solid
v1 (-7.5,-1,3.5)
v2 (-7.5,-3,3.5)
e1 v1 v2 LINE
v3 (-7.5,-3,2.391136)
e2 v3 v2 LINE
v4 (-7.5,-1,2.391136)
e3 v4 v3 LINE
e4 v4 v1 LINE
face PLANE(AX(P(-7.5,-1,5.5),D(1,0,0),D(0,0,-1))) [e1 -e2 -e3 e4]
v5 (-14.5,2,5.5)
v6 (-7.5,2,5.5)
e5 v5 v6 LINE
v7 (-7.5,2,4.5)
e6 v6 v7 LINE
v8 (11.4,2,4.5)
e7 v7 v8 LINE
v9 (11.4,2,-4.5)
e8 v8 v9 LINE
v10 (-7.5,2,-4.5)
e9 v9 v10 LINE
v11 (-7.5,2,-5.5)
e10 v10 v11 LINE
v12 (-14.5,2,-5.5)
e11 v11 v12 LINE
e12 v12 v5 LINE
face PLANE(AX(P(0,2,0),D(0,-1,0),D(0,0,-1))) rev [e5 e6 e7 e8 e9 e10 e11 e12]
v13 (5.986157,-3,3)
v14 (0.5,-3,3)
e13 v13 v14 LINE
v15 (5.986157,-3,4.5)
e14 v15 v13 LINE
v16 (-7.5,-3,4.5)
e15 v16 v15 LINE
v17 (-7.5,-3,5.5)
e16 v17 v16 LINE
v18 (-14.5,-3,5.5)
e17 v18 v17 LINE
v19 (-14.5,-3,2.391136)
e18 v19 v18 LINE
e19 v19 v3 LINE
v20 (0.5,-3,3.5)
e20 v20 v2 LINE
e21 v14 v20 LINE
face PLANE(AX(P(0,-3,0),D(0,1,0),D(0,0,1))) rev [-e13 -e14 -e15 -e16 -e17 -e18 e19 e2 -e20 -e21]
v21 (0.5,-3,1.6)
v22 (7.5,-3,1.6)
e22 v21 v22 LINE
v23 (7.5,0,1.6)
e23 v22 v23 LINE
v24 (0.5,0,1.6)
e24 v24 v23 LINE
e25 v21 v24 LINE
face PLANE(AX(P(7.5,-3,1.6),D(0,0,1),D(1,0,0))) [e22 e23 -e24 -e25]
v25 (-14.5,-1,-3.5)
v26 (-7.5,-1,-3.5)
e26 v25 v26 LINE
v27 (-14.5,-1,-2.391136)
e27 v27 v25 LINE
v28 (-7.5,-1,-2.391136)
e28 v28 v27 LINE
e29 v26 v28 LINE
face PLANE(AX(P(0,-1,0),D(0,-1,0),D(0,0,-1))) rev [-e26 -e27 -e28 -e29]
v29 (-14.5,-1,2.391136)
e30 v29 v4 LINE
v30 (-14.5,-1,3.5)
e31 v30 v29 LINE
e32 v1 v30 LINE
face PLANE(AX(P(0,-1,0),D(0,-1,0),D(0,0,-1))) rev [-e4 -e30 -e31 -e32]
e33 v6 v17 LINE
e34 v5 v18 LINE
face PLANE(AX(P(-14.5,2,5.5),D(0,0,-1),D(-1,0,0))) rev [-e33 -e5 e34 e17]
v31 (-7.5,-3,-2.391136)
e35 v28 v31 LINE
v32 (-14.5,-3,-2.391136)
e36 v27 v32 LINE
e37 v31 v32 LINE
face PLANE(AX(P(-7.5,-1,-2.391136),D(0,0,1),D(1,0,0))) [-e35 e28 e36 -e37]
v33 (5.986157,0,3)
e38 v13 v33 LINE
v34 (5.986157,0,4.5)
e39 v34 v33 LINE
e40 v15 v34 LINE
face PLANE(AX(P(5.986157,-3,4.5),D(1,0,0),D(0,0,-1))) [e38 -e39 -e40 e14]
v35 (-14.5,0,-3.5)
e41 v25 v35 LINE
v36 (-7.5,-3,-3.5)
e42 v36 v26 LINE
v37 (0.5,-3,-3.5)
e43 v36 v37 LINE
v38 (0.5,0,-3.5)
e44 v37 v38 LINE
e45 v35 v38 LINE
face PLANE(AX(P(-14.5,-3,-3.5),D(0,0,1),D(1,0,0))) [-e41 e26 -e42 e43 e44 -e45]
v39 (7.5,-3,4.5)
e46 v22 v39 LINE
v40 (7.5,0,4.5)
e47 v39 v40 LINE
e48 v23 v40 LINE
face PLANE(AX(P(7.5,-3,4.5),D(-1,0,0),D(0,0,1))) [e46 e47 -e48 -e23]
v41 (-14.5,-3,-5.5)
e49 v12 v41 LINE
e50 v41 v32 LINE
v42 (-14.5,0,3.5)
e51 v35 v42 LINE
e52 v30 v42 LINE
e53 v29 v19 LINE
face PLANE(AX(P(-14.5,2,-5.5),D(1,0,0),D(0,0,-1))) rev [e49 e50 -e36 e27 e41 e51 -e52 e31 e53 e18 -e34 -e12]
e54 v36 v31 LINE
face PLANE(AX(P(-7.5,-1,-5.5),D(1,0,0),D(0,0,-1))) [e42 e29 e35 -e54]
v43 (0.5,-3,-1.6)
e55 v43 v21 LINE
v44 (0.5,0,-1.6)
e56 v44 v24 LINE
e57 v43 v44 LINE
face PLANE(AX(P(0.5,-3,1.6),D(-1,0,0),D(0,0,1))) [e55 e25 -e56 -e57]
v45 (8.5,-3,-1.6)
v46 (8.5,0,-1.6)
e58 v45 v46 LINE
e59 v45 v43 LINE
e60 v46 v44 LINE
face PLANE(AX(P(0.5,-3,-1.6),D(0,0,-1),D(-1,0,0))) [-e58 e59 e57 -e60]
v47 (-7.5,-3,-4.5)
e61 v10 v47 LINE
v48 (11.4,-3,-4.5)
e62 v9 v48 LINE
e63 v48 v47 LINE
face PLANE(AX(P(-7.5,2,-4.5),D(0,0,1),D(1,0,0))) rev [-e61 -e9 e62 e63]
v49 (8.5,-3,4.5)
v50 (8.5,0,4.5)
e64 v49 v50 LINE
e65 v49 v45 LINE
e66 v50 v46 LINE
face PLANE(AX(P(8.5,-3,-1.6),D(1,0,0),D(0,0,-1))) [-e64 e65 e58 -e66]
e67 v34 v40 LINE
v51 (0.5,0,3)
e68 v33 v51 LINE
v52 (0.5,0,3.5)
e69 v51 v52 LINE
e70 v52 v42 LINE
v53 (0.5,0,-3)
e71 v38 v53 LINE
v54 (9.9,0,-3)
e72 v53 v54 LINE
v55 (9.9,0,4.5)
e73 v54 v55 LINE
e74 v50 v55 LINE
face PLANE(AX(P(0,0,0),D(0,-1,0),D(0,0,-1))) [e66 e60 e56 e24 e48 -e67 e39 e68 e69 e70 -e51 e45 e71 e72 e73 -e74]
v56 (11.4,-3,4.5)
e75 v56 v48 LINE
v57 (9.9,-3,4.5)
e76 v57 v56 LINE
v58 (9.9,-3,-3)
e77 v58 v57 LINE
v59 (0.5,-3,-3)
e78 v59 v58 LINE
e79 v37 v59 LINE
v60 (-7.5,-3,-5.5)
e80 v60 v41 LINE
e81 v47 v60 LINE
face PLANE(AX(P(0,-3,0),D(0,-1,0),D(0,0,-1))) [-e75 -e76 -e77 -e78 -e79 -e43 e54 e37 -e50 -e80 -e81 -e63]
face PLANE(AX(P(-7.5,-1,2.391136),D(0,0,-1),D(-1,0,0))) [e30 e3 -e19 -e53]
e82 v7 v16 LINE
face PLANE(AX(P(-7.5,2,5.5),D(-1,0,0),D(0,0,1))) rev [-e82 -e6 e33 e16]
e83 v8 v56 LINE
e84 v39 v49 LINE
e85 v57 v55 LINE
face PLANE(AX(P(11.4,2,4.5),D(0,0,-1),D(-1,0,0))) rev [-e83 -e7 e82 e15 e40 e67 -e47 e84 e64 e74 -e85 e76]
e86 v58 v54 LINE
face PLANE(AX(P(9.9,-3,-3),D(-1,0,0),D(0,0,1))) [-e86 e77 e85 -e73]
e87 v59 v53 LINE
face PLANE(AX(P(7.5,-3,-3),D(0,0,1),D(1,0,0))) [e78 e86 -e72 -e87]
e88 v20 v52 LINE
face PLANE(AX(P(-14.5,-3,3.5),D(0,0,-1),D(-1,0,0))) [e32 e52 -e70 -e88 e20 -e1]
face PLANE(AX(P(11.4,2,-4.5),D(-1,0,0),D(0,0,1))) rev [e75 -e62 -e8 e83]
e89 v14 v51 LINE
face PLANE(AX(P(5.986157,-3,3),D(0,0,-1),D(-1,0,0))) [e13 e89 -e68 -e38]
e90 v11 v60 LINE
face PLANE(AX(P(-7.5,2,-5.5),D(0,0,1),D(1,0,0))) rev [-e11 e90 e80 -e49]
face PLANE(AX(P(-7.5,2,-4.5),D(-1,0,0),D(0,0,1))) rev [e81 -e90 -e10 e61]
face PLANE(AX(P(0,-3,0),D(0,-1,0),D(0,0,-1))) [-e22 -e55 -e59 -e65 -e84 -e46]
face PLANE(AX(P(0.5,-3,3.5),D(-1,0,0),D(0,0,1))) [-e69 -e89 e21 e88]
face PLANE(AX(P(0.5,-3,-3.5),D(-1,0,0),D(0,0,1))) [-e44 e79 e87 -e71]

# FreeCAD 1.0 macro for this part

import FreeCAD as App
import Part
import Sketcher
from FreeCAD import Vector
Q = App.Units.Quantity

doc = App.newDocument("Part")
body = doc.addObject("PartDesign::Body", "Body")

sketch1 = doc.addObject("Sketcher::SketchObject", "Sketch")
body.addObject(sketch1)
sketch1.AttachmentSupport = (doc.XZ_Plane, [""])
sketch1.MapMode = "FlatFace"
sketch1.addGeometry([
    Part.LineSegment(Vector(-7.5, 4.5, 0), Vector(11.4, 4.5, 0)),
    Part.LineSegment(Vector(11.4, 4.5, 0), Vector(11.4, -4.5, 0)),
    Part.LineSegment(Vector(11.4, -4.5, 0), Vector(-7.5, -4.5, 0)),
    Part.LineSegment(Vector(-7.5, -4.5, 0), Vector(-7.5, -5.5, 0)),
    Part.LineSegment(Vector(-7.5, -5.5, 0), Vector(-14.5, -5.5, 0)),
    Part.LineSegment(Vector(-14.5, -5.5, 0), Vector(-14.5, 5.5, 0)),
    Part.LineSegment(Vector(-14.5, 5.5, 0), Vector(-7.5, 5.5, 0)),
    Part.LineSegment(Vector(-7.5, 5.5, 0), Vector(-7.5, 4.5, 0)),
], False)
sketch1.addConstraint([
    Sketcher.Constraint("Coincident", 0, 2, 1, 1),
    Sketcher.Constraint("Coincident", 1, 2, 2, 1),
    Sketcher.Constraint("Coincident", 2, 2, 3, 1),
    Sketcher.Constraint("Coincident", 3, 2, 4, 1),
    Sketcher.Constraint("Coincident", 4, 2, 5, 1),
    Sketcher.Constraint("Coincident", 5, 2, 6, 1),
    Sketcher.Constraint("Coincident", 6, 2, 7, 1),
    Sketcher.Constraint("Coincident", 7, 2, 0, 1),
    Sketcher.Constraint("Horizontal", 0),
    Sketcher.Constraint("Vertical", 1),
    Sketcher.Constraint("Horizontal", 2),
    Sketcher.Constraint("Vertical", 3),
    Sketcher.Constraint("Horizontal", 4),
    Sketcher.Constraint("Vertical", 5),
    Sketcher.Constraint("Horizontal", 6),
    Sketcher.Constraint("Vertical", 7),
    Sketcher.Constraint("Symmetric", 3, 2, 6, 2, -1),
    Sketcher.Constraint("Equal", 3, 7),
    Sketcher.Constraint("DistanceX", 4, 2, 4, 1, Q("7 mm")),
    Sketcher.Constraint("DistanceY", 1, 2, 1, 1, Q("9 mm")),
    Sketcher.Constraint("DistanceY", 3, 2, 3, 1, Q("1 mm")),
    Sketcher.Constraint("DistanceX", 0, 1, 0, 2, Q("18.9 mm")),
    Sketcher.Constraint("DistanceX", -1, 1, 0, 2, Q("11.4 mm")),
])
pad1 = doc.addObject("PartDesign::Pad", "Pad")
body.addObject(pad1)
pad1.Profile = sketch1
pad1.Length = 2
pad1.Reversed = True

sketch2 = doc.addObject("Sketcher::SketchObject", "Sketch001")
body.addObject(sketch2)
sketch2.AttachmentSupport = (doc.XZ_Plane, [""])
sketch2.MapMode = "FlatFace"
sketch2.addGeometry([
    Part.LineSegment(Vector(-7.5, -4.5, 0), Vector(-7.5, -5.5, 0)),
    Part.LineSegment(Vector(-7.5, -5.5, 0), Vector(-14.5, -5.5, 0)),
    Part.LineSegment(Vector(-14.5, -5.5, 0), Vector(-14.5, -3.5, 0)),
    Part.LineSegment(Vector(-14.5, -3.5, 0), Vector(0.5, -3.5, 0)),
    Part.LineSegment(Vector(0.5, -3.5, 0), Vector(0.5, -3, 0)),
    Part.LineSegment(Vector(0.5, -3, 0), Vector(9.9, -3, 0)),
    Part.LineSegment(Vector(9.9, -3, 0), Vector(9.9, 4.5, 0)),
    Part.LineSegment(Vector(9.9, 4.5, 0), Vector(11.4, 4.5, 0)),
    Part.LineSegment(Vector(11.4, 4.5, 0), Vector(11.4, -4.5, 0)),
    Part.LineSegment(Vector(11.4, -4.5, 0), Vector(-7.5, -4.5, 0)),
    Part.LineSegment(Vector(-7.5, 5.5, 0), Vector(-7.5, 4.5, 0)),
    Part.LineSegment(Vector(-7.5, 4.5, 0), Vector(5.986157, 4.5, 0)),
    Part.LineSegment(Vector(5.986157, 4.5, 0), Vector(5.986157, 3, 0)),
    Part.LineSegment(Vector(5.986157, 3, 0), Vector(0.5, 3, 0)),
    Part.LineSegment(Vector(0.5, 3, 0), Vector(0.5, 3.5, 0)),
    Part.LineSegment(Vector(0.5, 3.5, 0), Vector(-14.5, 3.5, 0)),
    Part.LineSegment(Vector(-14.5, 3.5, 0), Vector(-14.5, 5.5, 0)),
    Part.LineSegment(Vector(-14.5, 5.5, 0), Vector(-7.5, 5.5, 0)),
    Part.LineSegment(Vector(8.5, -1.6, 0), Vector(0.5, -1.6, 0)),
    Part.LineSegment(Vector(0.5, -1.6, 0), Vector(0.5, 1.6, 0)),
    Part.LineSegment(Vector(0.5, 1.6, 0), Vector(7.5, 1.6, 0)),
    Part.LineSegment(Vector(7.5, 1.6, 0), Vector(7.5, 4.5, 0)),
    Part.LineSegment(Vector(7.5, 4.5, 0), Vector(8.5, 4.5, 0)),
    Part.LineSegment(Vector(8.5, 4.5, 0), Vector(8.5, -1.6, 0)),
], False)
sketch2.addConstraint([
    Sketcher.Constraint("Coincident", 0, 2, 1, 1),
    Sketcher.Constraint("Coincident", 1, 2, 2, 1),
    Sketcher.Constraint("Coincident", 2, 2, 3, 1),
    Sketcher.Constraint("Coincident", 3, 2, 4, 1),
    Sketcher.Constraint("Coincident", 4, 2, 5, 1),
    Sketcher.Constraint("Coincident", 5, 2, 6, 1),
    Sketcher.Constraint("Coincident", 6, 2, 7, 1),
    Sketcher.Constraint("Coincident", 7, 2, 8, 1),
    Sketcher.Constraint("Coincident", 8, 2, 9, 1),
    Sketcher.Constraint("Coincident", 9, 2, 0, 1),
    Sketcher.Constraint("Coincident", 10, 2, 11, 1),
    Sketcher.Constraint("Coincident", 11, 2, 12, 1),
    Sketcher.Constraint("Coincident", 12, 2, 13, 1),
    Sketcher.Constraint("Coincident", 13, 2, 14, 1),
    Sketcher.Constraint("Coincident", 14, 2, 15, 1),
    Sketcher.Constraint("Coincident", 15, 2, 16, 1),
    Sketcher.Constraint("Coincident", 16, 2, 17, 1),
    Sketcher.Constraint("Coincident", 17, 2, 10, 1),
    Sketcher.Constraint("Coincident", 18, 2, 19, 1),
    Sketcher.Constraint("Coincident", 19, 2, 20, 1),
    Sketcher.Constraint("Coincident", 20, 2, 21, 1),
    Sketcher.Constraint("Coincident", 21, 2, 22, 1),
    Sketcher.Constraint("Coincident", 22, 2, 23, 1),
    Sketcher.Constraint("Coincident", 23, 2, 18, 1),
    Sketcher.Constraint("Vertical", 0),
    Sketcher.Constraint("Horizontal", 1),
    Sketcher.Constraint("Vertical", 2),
    Sketcher.Constraint("Horizontal", 3),
    Sketcher.Constraint("Vertical", 4),
    Sketcher.Constraint("Horizontal", 5),
    Sketcher.Constraint("Vertical", 6),
    Sketcher.Constraint("Horizontal", 7),
    Sketcher.Constraint("Vertical", 8),
    Sketcher.Constraint("Horizontal", 9),
    Sketcher.Constraint("Vertical", 10),
    Sketcher.Constraint("Horizontal", 11),
    Sketcher.Constraint("Vertical", 12),
    Sketcher.Constraint("Horizontal", 13),
    Sketcher.Constraint("Vertical", 14),
    Sketcher.Constraint("Horizontal", 15),
    Sketcher.Constraint("Vertical", 16),
    Sketcher.Constraint("Horizontal", 17),
    Sketcher.Constraint("Horizontal", 18),
    Sketcher.Constraint("Vertical", 19),
    Sketcher.Constraint("Horizontal", 20),
    Sketcher.Constraint("Vertical", 21),
    Sketcher.Constraint("Horizontal", 22),
    Sketcher.Constraint("Vertical", 23),
    Sketcher.Constraint("Symmetric", 9, 2, 21, 2, -1, 1),
    Sketcher.Constraint("Symmetric", 10, 2, 21, 2, -2),
    Sketcher.Constraint("Symmetric", 4, 2, 13, 2, -1),
    Sketcher.Constraint("Symmetric", 2, 2, 15, 2, -1),
    Sketcher.Constraint("Horizontal", 7, 2, 10, 2),
    Sketcher.Constraint("Vertical", 14, 2, 18, 2),
    Sketcher.Constraint("Equal", 17, 20),
    Sketcher.Constraint("Equal", 22, 0),
    Sketcher.Constraint("Equal", 0, 10),
    Sketcher.Constraint("Equal", 7, 12),
    Sketcher.Constraint("DistanceX", 1, 2, 1, 1, Q("7 mm")),
    Sketcher.Constraint("DistanceX", 3, 1, 3, 2, Q("15 mm")),
    Sketcher.Constraint("DistanceX", 18, 2, 18, 1, Q("8 mm")),
    Sketcher.Constraint("DistanceY", 2, 1, 2, 2, Q("2 mm")),
    Sketcher.Constraint("DistanceY", 8, 2, 8, 1, Q("9 mm")),
    Sketcher.Constraint("DistanceX", 5, 1, 5, 2, Q("9.4 mm")),
    Sketcher.Constraint("DistanceX", 7, 1, 7, 2, Q("1.5 mm")),
    Sketcher.Constraint("DistanceY", 19, 1, 19, 2, Q("3.2 mm")),
    Sketcher.Constraint("DistanceY", 21, 1, 21, 2, Q("2.9 mm")),
    Sketcher.Constraint("DistanceX", 11, 1, 11, 2, Q("13.486157 mm")),
])
pad2 = doc.addObject("PartDesign::Pad", "Pad001")
body.addObject(pad2)
pad2.Profile = sketch2
pad2.Length = 3

sketch3 = doc.addObject("Sketcher::SketchObject", "Sketch002")
body.addObject(sketch3)
sketch3.AttachmentSupport = (doc.XZ_Plane, [""])
sketch3.MapMode = "FlatFace"
sketch3.AttachmentOffset = App.Placement(Vector(0, 0, 3), App.Rotation())
sketch3.addGeometry([
    Part.LineSegment(Vector(-14.5, 5.5, 0), Vector(-14.5, 2.391136, 0)),
    Part.LineSegment(Vector(-14.5, 2.391136, 0), Vector(-7.5, 2.391136, 0)),
    Part.LineSegment(Vector(-7.5, 2.391136, 0), Vector(-7.5, 5.5, 0)),
    Part.LineSegment(Vector(-7.5, 5.5, 0), Vector(-14.5, 5.5, 0)),
    Part.LineSegment(Vector(-14.5, -2.391136, 0), Vector(-14.5, -5.5, 0)),
    Part.LineSegment(Vector(-14.5, -5.5, 0), Vector(-7.5, -5.5, 0)),
    Part.LineSegment(Vector(-7.5, -5.5, 0), Vector(-7.5, -2.391136, 0)),
    Part.LineSegment(Vector(-7.5, -2.391136, 0), Vector(-14.5, -2.391136, 0)),
], False)
sketch3.addConstraint([
    Sketcher.Constraint("Coincident", 0, 2, 1, 1),
    Sketcher.Constraint("Coincident", 1, 2, 2, 1),
    Sketcher.Constraint("Coincident", 2, 2, 3, 1),
    Sketcher.Constraint("Coincident", 3, 2, 0, 1),
    Sketcher.Constraint("Coincident", 4, 2, 5, 1),
    Sketcher.Constraint("Coincident", 5, 2, 6, 1),
    Sketcher.Constraint("Coincident", 6, 2, 7, 1),
    Sketcher.Constraint("Coincident", 7, 2, 4, 1),
    Sketcher.Constraint("Vertical", 0),
    Sketcher.Constraint("Horizontal", 1),
    Sketcher.Constraint("Vertical", 2),
    Sketcher.Constraint("Horizontal", 3),
    Sketcher.Constraint("Vertical", 4),
    Sketcher.Constraint("Horizontal", 5),
    Sketcher.Constraint("Vertical", 6),
    Sketcher.Constraint("Horizontal", 7),
    Sketcher.Constraint("Symmetric", 3, 2, 4, 2, -1),
    Sketcher.Constraint("Symmetric", 1, 2, 6, 2, -1),
    Sketcher.Constraint("DistanceX", 1, 1, 1, 2, Q("7 mm")),
    Sketcher.Constraint("DistanceY", 4, 2, 3, 2, Q("11 mm")),
    Sketcher.Constraint("DistanceX", 0, 2, -1, 1, Q("14.5 mm")),
    Sketcher.Constraint("DistanceY", 0, 2, 0, 1, Q("3.108864 mm")),
])
pad3 = doc.addObject("PartDesign::Pad", "Pad002")
body.addObject(pad3)
pad3.Profile = sketch3
pad3.Length = 2
pad3.Reversed = True

doc.recompute()
